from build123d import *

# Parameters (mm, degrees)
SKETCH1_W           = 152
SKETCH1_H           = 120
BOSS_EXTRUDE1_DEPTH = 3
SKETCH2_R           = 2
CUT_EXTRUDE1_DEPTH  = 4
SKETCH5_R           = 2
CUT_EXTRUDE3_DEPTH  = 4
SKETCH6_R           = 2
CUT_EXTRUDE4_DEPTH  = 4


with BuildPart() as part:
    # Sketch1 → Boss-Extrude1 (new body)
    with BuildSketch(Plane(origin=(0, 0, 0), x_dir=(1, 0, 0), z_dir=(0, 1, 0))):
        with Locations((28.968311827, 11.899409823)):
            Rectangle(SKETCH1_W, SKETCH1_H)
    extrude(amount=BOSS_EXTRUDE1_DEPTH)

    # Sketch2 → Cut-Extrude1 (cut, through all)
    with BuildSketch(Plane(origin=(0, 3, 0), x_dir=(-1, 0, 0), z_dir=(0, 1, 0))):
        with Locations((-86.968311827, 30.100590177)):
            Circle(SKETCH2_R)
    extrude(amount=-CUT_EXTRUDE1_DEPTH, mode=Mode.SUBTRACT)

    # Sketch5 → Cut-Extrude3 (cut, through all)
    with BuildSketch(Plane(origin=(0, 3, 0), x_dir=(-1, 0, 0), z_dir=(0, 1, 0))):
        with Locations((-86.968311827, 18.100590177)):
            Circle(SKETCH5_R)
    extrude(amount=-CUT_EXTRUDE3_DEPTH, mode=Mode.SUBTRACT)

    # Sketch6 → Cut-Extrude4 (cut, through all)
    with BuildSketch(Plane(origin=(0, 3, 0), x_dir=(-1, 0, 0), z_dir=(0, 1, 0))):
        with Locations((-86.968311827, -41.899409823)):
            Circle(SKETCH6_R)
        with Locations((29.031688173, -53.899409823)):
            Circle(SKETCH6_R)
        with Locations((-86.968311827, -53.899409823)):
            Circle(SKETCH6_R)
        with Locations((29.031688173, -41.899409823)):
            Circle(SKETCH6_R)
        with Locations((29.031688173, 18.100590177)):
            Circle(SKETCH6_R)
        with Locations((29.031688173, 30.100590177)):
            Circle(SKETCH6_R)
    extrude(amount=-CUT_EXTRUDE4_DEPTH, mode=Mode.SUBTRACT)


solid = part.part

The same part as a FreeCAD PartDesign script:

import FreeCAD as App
import Part
import Sketcher

V = App.Vector


def add_polygon(sketch, points):
    """Adds a closed chain of lines whose ends are joined by coincident constraints."""
    first, n = sketch.GeometryCount, len(points)
    for a, b in zip(points, points[1:] + points[:1]):
        sketch.addGeometry(Part.LineSegment(App.Vector(*a, 0), App.Vector(*b, 0)), False)
    for i in range(n):
        sketch.addConstraint(Sketcher.Constraint("Coincident", first + i, 2, first + (i + 1) % n, 1))

doc = App.newDocument("Part")
params = doc.addObject("Spreadsheet::Sheet", "Params")
for row, (alias, value) in enumerate([
    ("sketch1_width", "152 mm"),
    ("sketch1_height", "120 mm"),
    ("pad1_length", "3 mm"),
    ("sketch2_diameter", "4 mm"),
    ("sketch3_diameter", "4 mm"),
    ("sketch4_diameter", "4 mm"),
], start=1):
    params.set(f"A{row}", alias)
    params.set(f"B{row}", "=" + value)
    params.setAlias(f"B{row}", alias)

body = doc.addObject("PartDesign::Body", "Body")

# Sketch on XZ plane
sketch1 = doc.addObject("Sketcher::SketchObject", "Sketch")
body.addObject(sketch1)
sketch1.AttachmentSupport = (doc.XZ_Plane, [""])
sketch1.MapMode = "FlatFace"
add_polygon(sketch1, [(-47, -72), (-47, 48), (105, 48), (105, -72)])  # lines 0-3
sketch1.addConstraint([
    Sketcher.Constraint("Vertical", 0),
    Sketcher.Constraint("Horizontal", 1),
    Sketcher.Constraint("Vertical", 2),
    Sketcher.Constraint("Horizontal", 3),
    Sketcher.Constraint("DistanceX", 1, 1, 1, 2, 152.0),
    Sketcher.Constraint("DistanceY", 0, 1, 0, 2, 120.0),
    Sketcher.Constraint("DistanceX", 0, 2, -1, 1, 47.031688),
    Sketcher.Constraint("DistanceY", -1, 1, 0, 2, 48.10059),
])
sketch1.setExpression("Constraints[8]", "Params.sketch1_width")
sketch1.setExpression("Constraints[9]", "Params.sketch1_height")
pad1 = doc.addObject("PartDesign::Pad", "Pad")
body.addObject(pad1)
pad1.Profile = sketch1
pad1.setExpression("Length", "Params.pad1_length")
pad1.Reversed = True

# Sketch on XZ plane
sketch2 = doc.addObject("Sketcher::SketchObject", "Sketch001")
body.addObject(sketch2)
sketch2.AttachmentSupport = (doc.XZ_Plane, [""])
sketch2.MapMode = "FlatFace"
sketch2.AttachmentOffset = App.Placement(V(0, 0, -3), App.Rotation())
sketch2.addGeometry(Part.Circle(V(87, 30.1, 0), V(0, 0, 1), 2), False)
sketch2.addConstraint([
    Sketcher.Constraint("Diameter", 0, 4.0),
    Sketcher.Constraint("DistanceX", -1, 1, 0, 3, 86.968312),
    Sketcher.Constraint("DistanceY", -1, 1, 0, 3, 30.10059),
])
sketch2.setExpression("Constraints[0]", "Params.sketch2_diameter")
pocket1 = doc.addObject("PartDesign::Pocket", "Pocket")
body.addObject(pocket1)
pocket1.Profile = sketch2
pocket1.Type = "ThroughAll"
pocket1.Reversed = True

# Sketch on XZ plane
sketch3 = doc.addObject("Sketcher::SketchObject", "Sketch002")
body.addObject(sketch3)
sketch3.AttachmentSupport = (doc.XZ_Plane, [""])
sketch3.MapMode = "FlatFace"
sketch3.AttachmentOffset = App.Placement(V(0, 0, -3), App.Rotation())
sketch3.addGeometry(Part.Circle(V(87, 18.1, 0), V(0, 0, 1), 2), False)
sketch3.addConstraint([
    Sketcher.Constraint("Diameter", 0, 4.0),
    Sketcher.Constraint("DistanceX", -1, 1, 0, 3, 86.968312),
    Sketcher.Constraint("DistanceY", -1, 1, 0, 3, 18.10059),
])
sketch3.setExpression("Constraints[0]", "Params.sketch3_diameter")
pocket2 = doc.addObject("PartDesign::Pocket", "Pocket001")
body.addObject(pocket2)
pocket2.Profile = sketch3
pocket2.Type = "ThroughAll"
pocket2.Reversed = True

# Sketch on XZ plane
sketch4 = doc.addObject("Sketcher::SketchObject", "Sketch003")
body.addObject(sketch4)
sketch4.AttachmentSupport = (doc.XZ_Plane, [""])
sketch4.MapMode = "FlatFace"
sketch4.AttachmentOffset = App.Placement(V(0, 0, -3), App.Rotation())
sketch4.addGeometry([
    Part.Circle(V(87, -41.9, 0), V(0, 0, 1), 2),  # 0
    Part.Circle(V(-29, -53.9, 0), V(0, 0, 1), 2),  # 1
    Part.Circle(V(87, -53.9, 0), V(0, 0, 1), 2),  # 2
    Part.Circle(V(-29, -41.9, 0), V(0, 0, 1), 2),  # 3
    Part.Circle(V(-29, 18.1, 0), V(0, 0, 1), 2),  # 4
    Part.Circle(V(-29, 30.1, 0), V(0, 0, 1), 2),  # 5
], False)
sketch4.addConstraint([
    Sketcher.Constraint("Equal", 0, 1),
    Sketcher.Constraint("Equal", 1, 2),
    Sketcher.Constraint("Equal", 2, 3),
    Sketcher.Constraint("Equal", 3, 4),
    Sketcher.Constraint("Equal", 4, 5),
    Sketcher.Constraint("Horizontal", 1, 3, 2, 3),
    Sketcher.Constraint("Horizontal", 0, 3, 3, 3),
    Sketcher.Constraint("Vertical", 0, 3, 2, 3),
    Sketcher.Constraint("Vertical", 1, 3, 3, 3),
    Sketcher.Constraint("Vertical", 3, 3, 4, 3),
    Sketcher.Constraint("Vertical", 4, 3, 5, 3),
    Sketcher.Constraint("Diameter", 0, 4.0),
    Sketcher.Constraint("DistanceX", 1, 3, 0, 3, 116.0),
    Sketcher.Constraint("DistanceY", 1, 3, 0, 3, 12.0),
    Sketcher.Constraint("DistanceY", 3, 3, 4, 3, 60.0),
    Sketcher.Constraint("DistanceY", 4, 3, 5, 3, 12.0),
    Sketcher.Constraint("DistanceX", -1, 1, 0, 3, 86.968312),
    Sketcher.Constraint("DistanceY", 0, 3, -1, 1, 41.89941),
])
sketch4.setExpression("Constraints[11]", "Params.sketch4_diameter")
pocket3 = doc.addObject("PartDesign::Pocket", "Pocket002")
body.addObject(pocket3)
pocket3.Profile = sketch4
pocket3.Type = "ThroughAll"
pocket3.Reversed = True

doc.recompute()
